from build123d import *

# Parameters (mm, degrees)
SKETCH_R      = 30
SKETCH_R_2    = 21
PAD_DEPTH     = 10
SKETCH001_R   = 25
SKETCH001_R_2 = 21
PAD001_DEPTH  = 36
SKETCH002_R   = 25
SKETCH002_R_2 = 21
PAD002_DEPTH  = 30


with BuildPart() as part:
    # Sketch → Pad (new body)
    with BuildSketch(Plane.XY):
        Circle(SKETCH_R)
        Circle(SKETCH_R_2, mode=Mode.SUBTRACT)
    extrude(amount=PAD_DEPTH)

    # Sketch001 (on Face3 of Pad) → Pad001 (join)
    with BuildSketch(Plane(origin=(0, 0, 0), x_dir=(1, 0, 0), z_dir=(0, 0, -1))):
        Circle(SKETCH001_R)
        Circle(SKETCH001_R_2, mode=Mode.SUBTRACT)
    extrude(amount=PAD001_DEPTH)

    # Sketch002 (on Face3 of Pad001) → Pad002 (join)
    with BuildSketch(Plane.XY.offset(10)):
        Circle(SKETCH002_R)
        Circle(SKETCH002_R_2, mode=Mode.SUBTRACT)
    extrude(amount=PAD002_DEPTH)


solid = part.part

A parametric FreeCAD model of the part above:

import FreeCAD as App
import Part
import Sketcher

V = App.Vector
Q = App.Units.Quantity

doc = App.newDocument("Part")
body = doc.addObject("PartDesign::Body", "Body")

# Sketch on XY plane
sketch1 = body.newObject("Sketcher::SketchObject", "Sketch")
sketch1.AttachmentSupport = (doc.getObject("XY_Plane"), [""])
sketch1.MapMode = "FlatFace"
sketch1.addGeometry([
    Part.Circle(V(0, 0, 0), V(0, 0, 1), 30),
    Part.Circle(V(0, 0, 0), V(0, 0, 1), 21),
], False)
sketch1.addConstraint([
    Sketcher.Constraint("Coincident", 0, 3, -1, 1),
    Sketcher.Constraint("Coincident", 1, 3, -1, 1),
    Sketcher.Constraint("Diameter", 0, Q("60 mm")),
    Sketcher.Constraint("Diameter", 1, Q("42 mm")),
])
pad1 = body.newObject("PartDesign::Pad", "Pad")
pad1.Profile = sketch1
pad1.Length = 10

# Sketch on XY plane
sketch2 = body.newObject("Sketcher::SketchObject", "Sketch001")
sketch2.AttachmentSupport = (doc.getObject("XY_Plane"), [""])
sketch2.MapMode = "FlatFace"
sketch2.addGeometry([
    Part.Circle(V(0, 0, 0), V(0, 0, 1), 25),
    Part.Circle(V(0, 0, 0), V(0, 0, 1), 21),
], False)
sketch2.addConstraint([
    Sketcher.Constraint("Coincident", 0, 3, -1, 1),
    Sketcher.Constraint("Coincident", 1, 3, -1, 1),
    Sketcher.Constraint("Diameter", 0, Q("50 mm")),
    Sketcher.Constraint("Diameter", 1, Q("42 mm")),
])
pad2 = body.newObject("PartDesign::Pad", "Pad001")
pad2.Profile = sketch2
pad2.Length = 36
pad2.Reversed = True

# Sketch on XY plane
sketch3 = body.newObject("Sketcher::SketchObject", "Sketch002")
sketch3.AttachmentSupport = (doc.getObject("XY_Plane"), [""])
sketch3.MapMode = "FlatFace"
sketch3.AttachmentOffset = App.Placement(V(0, 0, 10), App.Rotation())
sketch3.addGeometry([
    Part.Circle(V(0, 0, 0), V(0, 0, 1), 25),
    Part.Circle(V(0, 0, 0), V(0, 0, 1), 21),
], False)
sketch3.addConstraint([
    Sketcher.Constraint("Coincident", 0, 3, -1, 1),
    Sketcher.Constraint("Coincident", 1, 3, -1, 1),
    Sketcher.Constraint("Diameter", 0, Q("50 mm")),
    Sketcher.Constraint("Diameter", 1, Q("42 mm")),
])
pad3 = body.newObject("PartDesign::Pad", "Pad002")
pad3.Profile = sketch3
pad3.Length = 30

doc.recompute()
